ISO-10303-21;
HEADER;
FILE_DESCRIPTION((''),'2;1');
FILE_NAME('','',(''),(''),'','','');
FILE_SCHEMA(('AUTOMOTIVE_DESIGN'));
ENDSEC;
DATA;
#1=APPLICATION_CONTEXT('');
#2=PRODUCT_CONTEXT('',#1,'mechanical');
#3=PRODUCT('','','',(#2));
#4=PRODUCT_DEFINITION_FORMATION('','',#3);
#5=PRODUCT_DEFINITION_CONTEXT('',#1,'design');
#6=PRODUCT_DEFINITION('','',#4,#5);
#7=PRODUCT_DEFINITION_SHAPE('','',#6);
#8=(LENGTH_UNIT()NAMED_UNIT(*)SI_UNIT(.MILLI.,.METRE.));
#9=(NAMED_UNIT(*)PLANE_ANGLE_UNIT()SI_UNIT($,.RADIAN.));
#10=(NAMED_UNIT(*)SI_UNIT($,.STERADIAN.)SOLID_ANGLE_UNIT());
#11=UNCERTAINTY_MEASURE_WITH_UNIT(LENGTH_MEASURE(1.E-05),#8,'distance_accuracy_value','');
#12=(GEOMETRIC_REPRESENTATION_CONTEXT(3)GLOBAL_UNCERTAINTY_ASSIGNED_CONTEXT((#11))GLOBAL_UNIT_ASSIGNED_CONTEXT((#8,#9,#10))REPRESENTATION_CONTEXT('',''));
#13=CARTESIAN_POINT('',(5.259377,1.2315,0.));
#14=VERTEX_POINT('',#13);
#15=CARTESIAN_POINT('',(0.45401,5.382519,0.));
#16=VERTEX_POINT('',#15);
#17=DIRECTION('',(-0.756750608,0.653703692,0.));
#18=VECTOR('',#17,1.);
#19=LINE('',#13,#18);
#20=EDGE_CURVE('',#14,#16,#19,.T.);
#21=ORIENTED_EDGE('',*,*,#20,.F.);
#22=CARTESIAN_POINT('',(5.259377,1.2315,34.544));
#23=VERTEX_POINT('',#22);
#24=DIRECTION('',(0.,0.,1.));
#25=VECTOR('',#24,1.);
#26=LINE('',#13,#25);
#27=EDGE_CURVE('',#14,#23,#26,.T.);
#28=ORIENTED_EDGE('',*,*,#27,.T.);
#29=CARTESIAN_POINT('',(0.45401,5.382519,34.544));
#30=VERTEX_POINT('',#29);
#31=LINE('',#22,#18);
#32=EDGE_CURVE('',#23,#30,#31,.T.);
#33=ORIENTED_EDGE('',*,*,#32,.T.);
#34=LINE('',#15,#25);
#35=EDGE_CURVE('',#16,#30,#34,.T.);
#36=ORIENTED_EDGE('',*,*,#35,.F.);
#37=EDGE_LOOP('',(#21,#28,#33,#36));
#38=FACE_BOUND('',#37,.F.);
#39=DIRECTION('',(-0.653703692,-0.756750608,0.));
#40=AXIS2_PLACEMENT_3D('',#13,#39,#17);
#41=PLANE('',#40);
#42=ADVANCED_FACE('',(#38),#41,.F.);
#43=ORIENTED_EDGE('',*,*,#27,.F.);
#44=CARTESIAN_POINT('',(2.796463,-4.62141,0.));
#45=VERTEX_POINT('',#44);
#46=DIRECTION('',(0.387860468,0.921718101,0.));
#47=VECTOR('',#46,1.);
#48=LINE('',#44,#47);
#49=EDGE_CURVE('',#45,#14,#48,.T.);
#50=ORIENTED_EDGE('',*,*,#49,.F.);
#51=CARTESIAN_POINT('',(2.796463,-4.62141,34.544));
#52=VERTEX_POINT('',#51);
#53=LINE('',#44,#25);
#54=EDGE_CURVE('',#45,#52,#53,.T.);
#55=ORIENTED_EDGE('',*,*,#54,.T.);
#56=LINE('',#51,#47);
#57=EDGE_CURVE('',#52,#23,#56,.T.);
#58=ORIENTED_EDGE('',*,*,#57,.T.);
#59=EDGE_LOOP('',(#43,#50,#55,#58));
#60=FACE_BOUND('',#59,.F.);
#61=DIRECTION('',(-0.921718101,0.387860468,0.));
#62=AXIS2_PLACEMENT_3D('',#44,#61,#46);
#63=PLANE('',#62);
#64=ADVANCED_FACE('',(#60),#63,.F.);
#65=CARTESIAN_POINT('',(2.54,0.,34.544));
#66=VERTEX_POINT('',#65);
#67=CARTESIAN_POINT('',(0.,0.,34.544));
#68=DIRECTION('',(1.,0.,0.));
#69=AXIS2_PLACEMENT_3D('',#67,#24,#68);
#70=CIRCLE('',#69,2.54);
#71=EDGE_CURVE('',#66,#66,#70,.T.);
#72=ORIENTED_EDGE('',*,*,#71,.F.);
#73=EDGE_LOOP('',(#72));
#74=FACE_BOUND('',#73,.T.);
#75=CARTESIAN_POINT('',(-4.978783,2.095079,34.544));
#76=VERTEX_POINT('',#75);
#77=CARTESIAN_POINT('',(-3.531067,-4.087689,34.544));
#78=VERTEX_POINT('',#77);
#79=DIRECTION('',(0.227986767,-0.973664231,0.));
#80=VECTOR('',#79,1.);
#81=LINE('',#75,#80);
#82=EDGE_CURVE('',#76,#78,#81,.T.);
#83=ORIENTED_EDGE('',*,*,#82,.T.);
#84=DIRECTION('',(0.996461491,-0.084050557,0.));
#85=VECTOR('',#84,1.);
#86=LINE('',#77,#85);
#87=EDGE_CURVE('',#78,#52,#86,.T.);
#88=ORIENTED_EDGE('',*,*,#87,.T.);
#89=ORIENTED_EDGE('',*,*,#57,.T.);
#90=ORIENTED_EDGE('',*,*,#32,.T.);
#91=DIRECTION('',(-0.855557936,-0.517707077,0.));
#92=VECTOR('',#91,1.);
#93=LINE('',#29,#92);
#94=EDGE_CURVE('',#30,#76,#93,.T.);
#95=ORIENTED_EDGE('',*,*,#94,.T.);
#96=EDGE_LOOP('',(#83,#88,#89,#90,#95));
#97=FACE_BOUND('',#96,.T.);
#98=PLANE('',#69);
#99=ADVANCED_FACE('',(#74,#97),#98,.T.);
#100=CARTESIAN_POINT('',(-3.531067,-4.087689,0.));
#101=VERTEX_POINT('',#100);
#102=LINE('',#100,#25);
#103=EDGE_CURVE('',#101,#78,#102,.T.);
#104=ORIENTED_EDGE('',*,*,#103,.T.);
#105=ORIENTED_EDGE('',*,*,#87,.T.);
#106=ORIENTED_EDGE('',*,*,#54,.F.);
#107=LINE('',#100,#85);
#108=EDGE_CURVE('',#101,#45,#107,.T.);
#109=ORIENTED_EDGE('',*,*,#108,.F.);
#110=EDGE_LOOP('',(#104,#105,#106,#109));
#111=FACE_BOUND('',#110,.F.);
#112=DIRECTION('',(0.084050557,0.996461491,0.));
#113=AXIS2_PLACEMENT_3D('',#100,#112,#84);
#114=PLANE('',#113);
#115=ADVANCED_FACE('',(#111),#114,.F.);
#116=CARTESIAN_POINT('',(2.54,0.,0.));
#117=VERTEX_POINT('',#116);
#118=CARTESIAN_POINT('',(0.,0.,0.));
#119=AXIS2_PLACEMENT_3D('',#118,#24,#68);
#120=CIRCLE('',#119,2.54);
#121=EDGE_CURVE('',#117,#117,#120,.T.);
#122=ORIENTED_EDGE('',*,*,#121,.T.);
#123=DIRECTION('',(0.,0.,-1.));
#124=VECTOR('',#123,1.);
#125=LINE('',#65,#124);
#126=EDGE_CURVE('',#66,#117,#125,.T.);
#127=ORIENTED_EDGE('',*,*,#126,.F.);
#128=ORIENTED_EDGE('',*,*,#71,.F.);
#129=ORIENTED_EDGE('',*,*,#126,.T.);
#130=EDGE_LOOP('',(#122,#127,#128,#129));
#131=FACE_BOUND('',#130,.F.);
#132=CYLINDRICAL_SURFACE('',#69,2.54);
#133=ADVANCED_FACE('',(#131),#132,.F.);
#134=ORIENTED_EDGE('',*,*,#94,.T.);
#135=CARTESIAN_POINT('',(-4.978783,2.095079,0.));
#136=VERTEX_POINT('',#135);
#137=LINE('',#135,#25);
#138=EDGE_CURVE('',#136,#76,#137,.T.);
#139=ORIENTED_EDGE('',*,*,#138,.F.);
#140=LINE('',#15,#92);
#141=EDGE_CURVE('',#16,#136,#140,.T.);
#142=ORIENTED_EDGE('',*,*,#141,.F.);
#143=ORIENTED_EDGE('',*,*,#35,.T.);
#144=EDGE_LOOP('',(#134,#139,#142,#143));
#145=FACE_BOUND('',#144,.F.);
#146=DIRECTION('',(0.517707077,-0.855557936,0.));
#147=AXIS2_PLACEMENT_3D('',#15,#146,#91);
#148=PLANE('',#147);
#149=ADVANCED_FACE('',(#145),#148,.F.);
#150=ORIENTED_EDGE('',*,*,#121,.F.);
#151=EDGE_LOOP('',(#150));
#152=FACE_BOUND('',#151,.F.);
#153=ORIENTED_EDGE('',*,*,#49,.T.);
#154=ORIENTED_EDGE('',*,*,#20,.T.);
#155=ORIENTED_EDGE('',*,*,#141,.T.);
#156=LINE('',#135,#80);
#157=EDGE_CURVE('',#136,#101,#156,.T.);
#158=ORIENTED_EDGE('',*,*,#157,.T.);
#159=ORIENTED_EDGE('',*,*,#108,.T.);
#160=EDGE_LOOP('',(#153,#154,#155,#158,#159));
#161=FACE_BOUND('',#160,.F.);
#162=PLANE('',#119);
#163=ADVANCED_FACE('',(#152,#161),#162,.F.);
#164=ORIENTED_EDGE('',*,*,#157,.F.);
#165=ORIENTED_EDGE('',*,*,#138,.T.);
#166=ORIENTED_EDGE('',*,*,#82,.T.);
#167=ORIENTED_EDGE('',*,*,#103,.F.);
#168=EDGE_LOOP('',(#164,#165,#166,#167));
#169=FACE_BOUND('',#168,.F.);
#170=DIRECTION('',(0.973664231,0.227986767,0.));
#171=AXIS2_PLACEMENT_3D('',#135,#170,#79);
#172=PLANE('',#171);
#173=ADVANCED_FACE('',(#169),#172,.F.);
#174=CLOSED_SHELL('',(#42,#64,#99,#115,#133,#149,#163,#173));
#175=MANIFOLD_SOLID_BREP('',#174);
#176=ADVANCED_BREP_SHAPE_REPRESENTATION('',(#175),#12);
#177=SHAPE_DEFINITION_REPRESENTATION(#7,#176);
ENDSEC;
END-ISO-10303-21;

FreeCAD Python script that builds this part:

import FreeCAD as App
import Part
import Sketcher
Q = App.Units.Quantity


def add_polygon(sketch, points):
    """Adds a closed chain of lines whose ends are joined by coincident constraints."""
    first, n = sketch.GeometryCount, len(points)
    for a, b in zip(points, points[1:] + points[:1]):
        sketch.addGeometry(Part.LineSegment(App.Vector(*a, 0), App.Vector(*b, 0)), False)
    for i in range(n):
        sketch.addConstraint(Sketcher.Constraint("Coincident", first + i, 2, first + (i + 1) % n, 1))

doc = App.newDocument("Part")
body = doc.addObject("PartDesign::Body", "Body")

sketch1 = body.newObject("Sketcher::SketchObject", "Sketch")
sketch1.AttachmentSupport = (doc.getObject("XY_Plane"), [""])
sketch1.MapMode = "FlatFace"
add_polygon(sketch1, [(5, 1), (0, 5), (-5, 2), (-4, -4), (3, -5)])
sketch1.addConstraint([
    Sketcher.Constraint("Equal", 0, 1),
    Sketcher.Constraint("Equal", 1, 2),
    Sketcher.Constraint("Equal", 2, 3),
    Sketcher.Constraint("Equal", 3, 4),
    Sketcher.Constraint("Distance", 0, Q("0.25 in")),
    Sketcher.Constraint("DistanceY", -1, 1, 4, 2, 1.2315),
    Sketcher.Constraint("DistanceX", -1, 1, 0, 2, 0.45401),
    Sketcher.Constraint("DistanceY", -1, 1, 0, 2, 5.382519),
    Sketcher.Constraint("DistanceY", -1, 1, 1, 2, 2.095079),
    Sketcher.Constraint("DistanceY", 2, 2, -1, 1, 4.087689),
])
pad1 = body.newObject("PartDesign::Pad", "Pad")
pad1.Profile = sketch1
pad1.Length = Q("1.36 in")

sketch2 = body.newObject("Sketcher::SketchObject", "Sketch001")
sketch2.AttachmentSupport = (doc.getObject("XY_Plane"), [""])
sketch2.MapMode = "FlatFace"
sketch2.AttachmentOffset = App.Placement(App.Vector(0, 0, 1.36 * 25.4), App.Rotation())
sketch2.addGeometry(Part.Circle(App.Vector(0, 0, 0), App.Vector(0, 0, 1), 2.5), False)
sketch2.addConstraint([
    Sketcher.Constraint("Coincident", 0, 3, -1, 1),
    Sketcher.Constraint("Diameter", 0, Q("0.2 in")),
])
pocket1 = body.newObject("PartDesign::Pocket", "Pocket")
pocket1.Profile = sketch2
pocket1.Type = "ThroughAll"

doc.recompute()
